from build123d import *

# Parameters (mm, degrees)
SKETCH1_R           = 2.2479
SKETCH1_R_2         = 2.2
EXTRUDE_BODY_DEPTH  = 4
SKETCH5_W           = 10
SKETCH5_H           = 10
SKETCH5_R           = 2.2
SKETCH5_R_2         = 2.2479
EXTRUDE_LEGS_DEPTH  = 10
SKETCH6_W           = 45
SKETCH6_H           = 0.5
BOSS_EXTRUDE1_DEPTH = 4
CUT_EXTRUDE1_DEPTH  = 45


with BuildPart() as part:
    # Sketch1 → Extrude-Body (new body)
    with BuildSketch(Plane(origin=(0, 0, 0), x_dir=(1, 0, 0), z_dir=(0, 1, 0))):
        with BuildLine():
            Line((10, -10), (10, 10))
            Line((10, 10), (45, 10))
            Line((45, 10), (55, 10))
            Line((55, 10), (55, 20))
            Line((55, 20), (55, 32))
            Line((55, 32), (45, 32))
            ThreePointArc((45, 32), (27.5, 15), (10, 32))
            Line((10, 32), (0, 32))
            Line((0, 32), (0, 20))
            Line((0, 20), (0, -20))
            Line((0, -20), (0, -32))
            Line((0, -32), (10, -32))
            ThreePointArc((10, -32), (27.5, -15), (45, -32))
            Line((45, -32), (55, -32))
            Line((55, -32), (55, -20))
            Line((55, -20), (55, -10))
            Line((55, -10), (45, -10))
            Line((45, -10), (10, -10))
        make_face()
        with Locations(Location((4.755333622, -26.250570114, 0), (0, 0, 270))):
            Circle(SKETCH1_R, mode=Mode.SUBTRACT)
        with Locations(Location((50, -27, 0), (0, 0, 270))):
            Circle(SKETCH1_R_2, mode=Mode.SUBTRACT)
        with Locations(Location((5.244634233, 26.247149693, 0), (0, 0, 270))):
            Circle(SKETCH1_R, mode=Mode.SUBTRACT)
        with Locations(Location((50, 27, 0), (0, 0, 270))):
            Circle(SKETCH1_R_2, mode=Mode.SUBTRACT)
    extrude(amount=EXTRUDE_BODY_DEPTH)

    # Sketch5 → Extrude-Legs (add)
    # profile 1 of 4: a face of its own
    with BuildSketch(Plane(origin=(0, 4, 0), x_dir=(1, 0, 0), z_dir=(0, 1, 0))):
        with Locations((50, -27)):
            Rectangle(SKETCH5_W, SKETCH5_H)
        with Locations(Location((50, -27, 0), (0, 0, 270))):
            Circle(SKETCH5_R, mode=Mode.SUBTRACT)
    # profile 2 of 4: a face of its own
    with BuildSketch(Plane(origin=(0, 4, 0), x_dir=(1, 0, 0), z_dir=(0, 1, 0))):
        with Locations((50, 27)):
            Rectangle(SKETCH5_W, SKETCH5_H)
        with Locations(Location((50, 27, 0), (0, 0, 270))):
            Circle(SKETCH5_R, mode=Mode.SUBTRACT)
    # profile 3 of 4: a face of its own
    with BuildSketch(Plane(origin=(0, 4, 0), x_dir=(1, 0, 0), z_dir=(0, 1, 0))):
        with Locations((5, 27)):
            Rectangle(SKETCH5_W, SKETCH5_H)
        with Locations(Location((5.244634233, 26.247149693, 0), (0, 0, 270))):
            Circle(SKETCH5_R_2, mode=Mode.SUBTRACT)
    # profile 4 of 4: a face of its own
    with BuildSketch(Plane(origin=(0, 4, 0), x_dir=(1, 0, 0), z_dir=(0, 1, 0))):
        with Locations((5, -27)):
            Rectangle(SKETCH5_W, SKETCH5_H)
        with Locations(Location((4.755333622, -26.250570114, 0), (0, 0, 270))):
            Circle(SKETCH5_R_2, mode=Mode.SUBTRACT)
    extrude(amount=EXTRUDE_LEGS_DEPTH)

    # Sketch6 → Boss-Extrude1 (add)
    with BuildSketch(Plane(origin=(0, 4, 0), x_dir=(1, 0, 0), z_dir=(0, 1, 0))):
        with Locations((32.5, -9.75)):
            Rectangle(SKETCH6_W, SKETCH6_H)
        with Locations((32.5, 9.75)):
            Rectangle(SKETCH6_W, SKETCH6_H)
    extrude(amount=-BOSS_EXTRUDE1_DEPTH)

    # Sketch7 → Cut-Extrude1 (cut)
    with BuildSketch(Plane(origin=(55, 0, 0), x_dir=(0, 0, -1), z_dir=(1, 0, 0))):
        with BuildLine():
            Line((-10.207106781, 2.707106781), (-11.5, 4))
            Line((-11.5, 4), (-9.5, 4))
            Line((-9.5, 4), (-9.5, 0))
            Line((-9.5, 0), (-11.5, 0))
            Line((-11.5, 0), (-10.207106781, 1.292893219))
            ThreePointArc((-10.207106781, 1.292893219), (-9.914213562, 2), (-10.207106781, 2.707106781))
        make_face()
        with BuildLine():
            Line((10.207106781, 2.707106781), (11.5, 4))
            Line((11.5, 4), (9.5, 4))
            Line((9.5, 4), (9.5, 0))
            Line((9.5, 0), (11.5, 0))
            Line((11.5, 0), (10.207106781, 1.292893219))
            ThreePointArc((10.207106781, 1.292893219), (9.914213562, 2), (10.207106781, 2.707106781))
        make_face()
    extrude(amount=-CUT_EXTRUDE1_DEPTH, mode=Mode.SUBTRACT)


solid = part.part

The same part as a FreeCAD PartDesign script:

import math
import FreeCAD as App
import Part
import Sketcher
from FreeCAD import Vector
Q = App.Units.Quantity

doc = App.newDocument("Part")
body = doc.addObject("PartDesign::Body", "Body")

# Sketch on XZ plane
sketch1 = body.newObject("Sketcher::SketchObject", "Sketch")
sketch1.AttachmentSupport = (doc.getObject("XZ_Plane"), [""])
sketch1.MapMode = "FlatFace"
sketch1.addGeometry(Part.LineSegment(Vector(10, 10, 0), Vector(10, -10, 0)), False)
sketch1.addGeometry(Part.LineSegment(Vector(10, -10, 0), Vector(55, -10, 0)), False)
sketch1.addGeometry(Part.LineSegment(Vector(55, -10, 0), Vector(55, -32, 0)), False)
sketch1.addGeometry(Part.LineSegment(Vector(55, -32, 0), Vector(45, -32, 0)), False)
sketch1.addGeometry(Part.ArcOfCircle(Part.Circle(Vector(27.5, -32.5, 0), Vector(0, 0, 1), 17.5), math.radians(2), math.radians(178)), False)
sketch1.addGeometry(Part.LineSegment(Vector(10, -32, 0), Vector(0, -32, 0)), False)
sketch1.addGeometry(Part.LineSegment(Vector(0, -32, 0), Vector(0, 32, 0)), False)
sketch1.addGeometry(Part.LineSegment(Vector(0, 32, 0), Vector(10, 32, 0)), False)
sketch1.addGeometry(Part.ArcOfCircle(Part.Circle(Vector(27.5, 32.5, 0), Vector(0, 0, 1), 17.5), math.radians(-178), math.radians(-2)), False)
sketch1.addGeometry(Part.LineSegment(Vector(45, 32, 0), Vector(55, 32, 0)), False)
sketch1.addGeometry(Part.LineSegment(Vector(55, 32, 0), Vector(55, 10, 0)), False)
sketch1.addGeometry(Part.LineSegment(Vector(55, 10, 0), Vector(10, 10, 0)), False)
sketch1.addGeometry(Part.Circle(Vector(4.8, 26.3, 0), Vector(0, 0, 1), 2.2), False)
sketch1.addGeometry(Part.Circle(Vector(50, 27, 0), Vector(0, 0, 1), 2.2), False)
sketch1.addGeometry(Part.Circle(Vector(5.2, -26.2, 0), Vector(0, 0, 1), 2.2), False)
sketch1.addGeometry(Part.Circle(Vector(50, -27, 0), Vector(0, 0, 1), 2.2), False)
sketch1.addConstraint(Sketcher.Constraint("Coincident", 0, 2, 1, 1))
sketch1.addConstraint(Sketcher.Constraint("Coincident", 1, 2, 2, 1))
sketch1.addConstraint(Sketcher.Constraint("Coincident", 2, 2, 3, 1))
sketch1.addConstraint(Sketcher.Constraint("Coincident", 3, 2, 4, 1))
sketch1.addConstraint(Sketcher.Constraint("Coincident", 4, 2, 5, 1))
sketch1.addConstraint(Sketcher.Constraint("Coincident", 5, 2, 6, 1))
sketch1.addConstraint(Sketcher.Constraint("Coincident", 6, 2, 7, 1))
sketch1.addConstraint(Sketcher.Constraint("Coincident", 7, 2, 8, 1))
sketch1.addConstraint(Sketcher.Constraint("Coincident", 8, 2, 9, 1))
sketch1.addConstraint(Sketcher.Constraint("Coincident", 9, 2, 10, 1))
sketch1.addConstraint(Sketcher.Constraint("Coincident", 10, 2, 11, 1))
sketch1.addConstraint(Sketcher.Constraint("Coincident", 11, 2, 0, 1))
sketch1.addConstraint(Sketcher.Constraint("Vertical", 0))
sketch1.addConstraint(Sketcher.Constraint("Horizontal", 1))
sketch1.addConstraint(Sketcher.Constraint("Vertical", 2))
sketch1.addConstraint(Sketcher.Constraint("Horizontal", 3))
sketch1.addConstraint(Sketcher.Constraint("Horizontal", 5))
sketch1.addConstraint(Sketcher.Constraint("Vertical", 6))
sketch1.addConstraint(Sketcher.Constraint("Horizontal", 7))
sketch1.addConstraint(Sketcher.Constraint("Horizontal", 9))
sketch1.addConstraint(Sketcher.Constraint("Vertical", 10))
sketch1.addConstraint(Sketcher.Constraint("Horizontal", 11))
sketch1.addConstraint(Sketcher.Constraint("Equal", 4, 8))
sketch1.addConstraint(Sketcher.Constraint("Equal", 12, 14))
sketch1.addConstraint(Sketcher.Constraint("Equal", 13, 15))
sketch1.addConstraint(Sketcher.Constraint("Symmetric", 5, 2, 6, 2, -1, 1))
sketch1.addConstraint(Sketcher.Constraint("Symmetric", 4, 3, 8, 3, -1))
sketch1.addConstraint(Sketcher.Constraint("Symmetric", 13, 3, 15, 3, -1))
sketch1.addConstraint(Sketcher.Constraint("Symmetric", 2, 2, 9, 2, -1))
sketch1.addConstraint(Sketcher.Constraint("Horizontal", 3, 2, 4, 2))
sketch1.addConstraint(Sketcher.Constraint("Vertical", 0, 2, 4, 2))
sketch1.addConstraint(Sketcher.Constraint("Equal", 3, 5))
sketch1.addConstraint(Sketcher.Constraint("Equal", 2, 10))
sketch1.addConstraint(Sketcher.Constraint("Diameter", 13, Q("4.4 mm")))
sketch1.addConstraint(Sketcher.Constraint("DistanceX", 1, 1, 1, 2, Q("45 mm")))
sketch1.addConstraint(Sketcher.Constraint("DistanceX", 3, 2, 3, 1, Q("10 mm")))
sketch1.addConstraint(Sketcher.Constraint("DistanceY", 0, 2, 0, 1, Q("20 mm")))
sketch1.addConstraint(Sketcher.Constraint("DistanceY", 2, 2, 2, 1, Q("22 mm")))
sketch1.addConstraint(Sketcher.Constraint("DistanceX", -1, 1, 13, 3, Q("50 mm")))
sketch1.addConstraint(Sketcher.Constraint("DistanceY", -1, 1, 13, 3, Q("27 mm")))
sketch1.addConstraint(Sketcher.Constraint("Diameter", 12, Q("4.4958 mm")))
sketch1.addConstraint(Sketcher.Constraint("Radius", 4, Q("17.507353 mm")))
sketch1.addConstraint(Sketcher.Constraint("DistanceX", 12, 3, 14, 3, Q("0.489301 mm")))
sketch1.addConstraint(Sketcher.Constraint("DistanceY", -1, 1, 12, 3, Q("26.25057 mm")))
sketch1.addConstraint(Sketcher.Constraint("DistanceY", 14, 3, -1, 1, Q("26.24715 mm")))
sketch1.addConstraint(Sketcher.Constraint("DistanceX", -1, 1, 12, 3, Q("4.755334 mm")))
pad1 = body.newObject("PartDesign::Pad", "Pad")
pad1.Profile = sketch1
pad1.Length = 4
pad1.Reversed = True

# Sketch on XZ plane
sketch2 = body.newObject("Sketcher::SketchObject", "Sketch001")
sketch2.AttachmentSupport = (doc.getObject("XZ_Plane"), [""])
sketch2.MapMode = "FlatFace"
sketch2.AttachmentOffset = App.Placement(Vector(0, 0, -4), App.Rotation())
sketch2.addGeometry(Part.LineSegment(Vector(45, 22, 0), Vector(45, 32, 0)), False)
sketch2.addGeometry(Part.LineSegment(Vector(45, 32, 0), Vector(55, 32, 0)), False)
sketch2.addGeometry(Part.LineSegment(Vector(55, 32, 0), Vector(55, 22, 0)), False)
sketch2.addGeometry(Part.LineSegment(Vector(55, 22, 0), Vector(45, 22, 0)), False)
sketch2.addGeometry(Part.Circle(Vector(50, 27, 0), Vector(0, 0, 1), 2.2), False)
sketch2.addGeometry(Part.LineSegment(Vector(45, -32, 0), Vector(45, -22, 0)), False)
sketch2.addGeometry(Part.LineSegment(Vector(45, -22, 0), Vector(55, -22, 0)), False)
sketch2.addGeometry(Part.LineSegment(Vector(55, -22, 0), Vector(55, -32, 0)), False)
sketch2.addGeometry(Part.LineSegment(Vector(55, -32, 0), Vector(45, -32, 0)), False)
sketch2.addGeometry(Part.Circle(Vector(50, -27, 0), Vector(0, 0, 1), 2.2), False)
sketch2.addGeometry(Part.LineSegment(Vector(0, -32, 0), Vector(0, -22, 0)), False)
sketch2.addGeometry(Part.LineSegment(Vector(0, -22, 0), Vector(10, -22, 0)), False)
sketch2.addGeometry(Part.LineSegment(Vector(10, -22, 0), Vector(10, -32, 0)), False)
sketch2.addGeometry(Part.LineSegment(Vector(10, -32, 0), Vector(0, -32, 0)), False)
sketch2.addGeometry(Part.Circle(Vector(5.2, -26.2, 0), Vector(0, 0, 1), 2.2), False)
sketch2.addGeometry(Part.LineSegment(Vector(0, 22, 0), Vector(0, 32, 0)), False)
sketch2.addGeometry(Part.LineSegment(Vector(0, 32, 0), Vector(10, 32, 0)), False)
sketch2.addGeometry(Part.LineSegment(Vector(10, 32, 0), Vector(10, 22, 0)), False)
sketch2.addGeometry(Part.LineSegment(Vector(10, 22, 0), Vector(0, 22, 0)), False)
sketch2.addGeometry(Part.Circle(Vector(4.8, 26.3, 0), Vector(0, 0, 1), 2.2), False)
sketch2.addConstraint(Sketcher.Constraint("Coincident", 0, 2, 1, 1))
sketch2.addConstraint(Sketcher.Constraint("Coincident", 1, 2, 2, 1))
sketch2.addConstraint(Sketcher.Constraint("Coincident", 2, 2, 3, 1))
sketch2.addConstraint(Sketcher.Constraint("Coincident", 3, 2, 0, 1))
sketch2.addConstraint(Sketcher.Constraint("Coincident", 5, 2, 6, 1))
sketch2.addConstraint(Sketcher.Constraint("Coincident", 6, 2, 7, 1))
sketch2.addConstraint(Sketcher.Constraint("Coincident", 7, 2, 8, 1))
sketch2.addConstraint(Sketcher.Constraint("Coincident", 8, 2, 5, 1))
sketch2.addConstraint(Sketcher.Constraint("Coincident", 10, 2, 11, 1))
sketch2.addConstraint(Sketcher.Constraint("Coincident", 11, 2, 12, 1))
sketch2.addConstraint(Sketcher.Constraint("Coincident", 12, 2, 13, 1))
sketch2.addConstraint(Sketcher.Constraint("Coincident", 13, 2, 10, 1))
sketch2.addConstraint(Sketcher.Constraint("Coincident", 15, 2, 16, 1))
sketch2.addConstraint(Sketcher.Constraint("Coincident", 16, 2, 17, 1))
sketch2.addConstraint(Sketcher.Constraint("Coincident", 17, 2, 18, 1))
sketch2.addConstraint(Sketcher.Constraint("Coincident", 18, 2, 15, 1))
sketch2.addConstraint(Sketcher.Constraint("Vertical", 0))
sketch2.addConstraint(Sketcher.Constraint("Horizontal", 1))
sketch2.addConstraint(Sketcher.Constraint("Vertical", 2))
sketch2.addConstraint(Sketcher.Constraint("Horizontal", 3))
sketch2.addConstraint(Sketcher.Constraint("Vertical", 5))
sketch2.addConstraint(Sketcher.Constraint("Horizontal", 6))
sketch2.addConstraint(Sketcher.Constraint("Vertical", 7))
sketch2.addConstraint(Sketcher.Constraint("Horizontal", 8))
sketch2.addConstraint(Sketcher.Constraint("Vertical", 10))
sketch2.addConstraint(Sketcher.Constraint("Horizontal", 11))
sketch2.addConstraint(Sketcher.Constraint("Vertical", 12))
sketch2.addConstraint(Sketcher.Constraint("Horizontal", 13))
sketch2.addConstraint(Sketcher.Constraint("Vertical", 15))
sketch2.addConstraint(Sketcher.Constraint("Horizontal", 16))
sketch2.addConstraint(Sketcher.Constraint("Vertical", 17))
sketch2.addConstraint(Sketcher.Constraint("Horizontal", 18))
sketch2.addConstraint(Sketcher.Constraint("Equal", 4, 9))
sketch2.addConstraint(Sketcher.Constraint("Equal", 14, 19))
sketch2.addConstraint(Sketcher.Constraint("Symmetric", 13, 2, 15, 2, -1, 1))
sketch2.addConstraint(Sketcher.Constraint("Symmetric", 4, 3, 9, 3, -1))
sketch2.addConstraint(Sketcher.Constraint("Symmetric", 3, 2, 5, 2, -1))
sketch2.addConstraint(Sketcher.Constraint("Symmetric", 1, 2, 7, 2, -1))
sketch2.addConstraint(Sketcher.Constraint("Symmetric", 11, 2, 17, 2, -1))
sketch2.addConstraint(Sketcher.Constraint("PointOnObject", 10, 2, -2))
sketch2.addConstraint(Sketcher.Constraint("Horizontal", 6, 2, 10, 2))
sketch2.addConstraint(Sketcher.Constraint("Horizontal", 8, 2, 12, 2))
sketch2.addConstraint(Sketcher.Constraint("Equal", 8, 11))
sketch2.addConstraint(Sketcher.Constraint("Equal", 18, 0))
sketch2.addConstraint(Sketcher.Constraint("Diameter", 4, Q("4.4 mm")))
sketch2.addConstraint(Sketcher.Constraint("DistanceX", 1, 1, 1, 2, Q("10 mm")))
sketch2.addConstraint(Sketcher.Constraint("DistanceX", -1, 1, 4, 3, Q("50 mm")))
sketch2.addConstraint(Sketcher.Constraint("DistanceY", -1, 1, 4, 3, Q("27 mm")))
sketch2.addConstraint(Sketcher.Constraint("DistanceX", -1, 1, 0, 2, Q("45 mm")))
sketch2.addConstraint(Sketcher.Constraint("DistanceY", -1, 1, 0, 2, Q("32 mm")))
sketch2.addConstraint(Sketcher.Constraint("Diameter", 14, Q("4.4958 mm")))
sketch2.addConstraint(Sketcher.Constraint("DistanceX", 19, 3, 14, 3, Q("0.489301 mm")))
sketch2.addConstraint(Sketcher.Constraint("DistanceY", 14, 3, -1, 1, Q("26.24715 mm")))
sketch2.addConstraint(Sketcher.Constraint("DistanceY", -1, 1, 19, 3, Q("26.25057 mm")))
sketch2.addConstraint(Sketcher.Constraint("DistanceX", -1, 1, 14, 3, Q("5.244634 mm")))
pad2 = body.newObject("PartDesign::Pad", "Pad001")
pad2.Profile = sketch2
pad2.Length = 10
pad2.Reversed = True

# Sketch on XZ plane
sketch3 = body.newObject("Sketcher::SketchObject", "Sketch002")
sketch3.AttachmentSupport = (doc.getObject("XZ_Plane"), [""])
sketch3.MapMode = "FlatFace"
sketch3.AttachmentOffset = App.Placement(Vector(0, 0, -4), App.Rotation())
sketch3.addGeometry(Part.LineSegment(Vector(10, 9.5, 0), Vector(10, 10, 0)), False)
sketch3.addGeometry(Part.LineSegment(Vector(10, 10, 0), Vector(55, 10, 0)), False)
sketch3.addGeometry(Part.LineSegment(Vector(55, 10, 0), Vector(55, 9.5, 0)), False)
sketch3.addGeometry(Part.LineSegment(Vector(55, 9.5, 0), Vector(10, 9.5, 0)), False)
sketch3.addGeometry(Part.LineSegment(Vector(10, -10, 0), Vector(10, -9.5, 0)), False)
sketch3.addGeometry(Part.LineSegment(Vector(10, -9.5, 0), Vector(55, -9.5, 0)), False)
sketch3.addGeometry(Part.LineSegment(Vector(55, -9.5, 0), Vector(55, -10, 0)), False)
sketch3.addGeometry(Part.LineSegment(Vector(55, -10, 0), Vector(10, -10, 0)), False)
sketch3.addConstraint(Sketcher.Constraint("Coincident", 0, 2, 1, 1))
sketch3.addConstraint(Sketcher.Constraint("Coincident", 1, 2, 2, 1))
sketch3.addConstraint(Sketcher.Constraint("Coincident", 2, 2, 3, 1))
sketch3.addConstraint(Sketcher.Constraint("Coincident", 3, 2, 0, 1))
sketch3.addConstraint(Sketcher.Constraint("Coincident", 4, 2, 5, 1))
sketch3.addConstraint(Sketcher.Constraint("Coincident", 5, 2, 6, 1))
sketch3.addConstraint(Sketcher.Constraint("Coincident", 6, 2, 7, 1))
sketch3.addConstraint(Sketcher.Constraint("Coincident", 7, 2, 4, 1))
sketch3.addConstraint(Sketcher.Constraint("Vertical", 0))
sketch3.addConstraint(Sketcher.Constraint("Horizontal", 1))
sketch3.addConstraint(Sketcher.Constraint("Vertical", 2))
sketch3.addConstraint(Sketcher.Constraint("Horizontal", 3))
sketch3.addConstraint(Sketcher.Constraint("Vertical", 4))
sketch3.addConstraint(Sketcher.Constraint("Horizontal", 5))
sketch3.addConstraint(Sketcher.Constraint("Vertical", 6))
sketch3.addConstraint(Sketcher.Constraint("Horizontal", 7))
sketch3.addConstraint(Sketcher.Constraint("Symmetric", 3, 2, 4, 2, -1))
sketch3.addConstraint(Sketcher.Constraint("Symmetric", 1, 2, 6, 2, -1))
sketch3.addConstraint(Sketcher.Constraint("DistanceX", 1, 1, 1, 2, Q("45 mm")))
sketch3.addConstraint(Sketcher.Constraint("DistanceY", 0, 1, 0, 2, Q("0.5 mm")))
sketch3.addConstraint(Sketcher.Constraint("DistanceX", -1, 1, 0, 2, Q("10 mm")))
sketch3.addConstraint(Sketcher.Constraint("DistanceY", -1, 1, 0, 2, Q("10 mm")))
pad3 = body.newObject("PartDesign::Pad", "Pad002")
pad3.Profile = sketch3
pad3.Length = 4

# Sketch on YZ plane
sketch4 = body.newObject("Sketcher::SketchObject", "Sketch003")
sketch4.AttachmentSupport = (doc.getObject("YZ_Plane"), [""])
sketch4.MapMode = "FlatFace"
sketch4.AttachmentOffset = App.Placement(Vector(0, 0, 55), App.Rotation())
sketch4.addGeometry(Part.LineSegment(Vector(4, 11.5, 0), Vector(2.7, 10.2, 0)), False)
sketch4.addGeometry(Part.ArcOfCircle(Part.Circle(Vector(2, 10.9, 0), Vector(0, 0, 1), 1), math.radians(-135), math.radians(-45)), False)
sketch4.addGeometry(Part.LineSegment(Vector(1.3, 10.2, 0), Vector(0, 11.5, 0)), False)
sketch4.addGeometry(Part.LineSegment(Vector(0, 11.5, 0), Vector(0, 9.5, 0)), False)
sketch4.addGeometry(Part.LineSegment(Vector(0, 9.5, 0), Vector(4, 9.5, 0)), False)
sketch4.addGeometry(Part.LineSegment(Vector(4, 9.5, 0), Vector(4, 11.5, 0)), False)
sketch4.addGeometry(Part.LineSegment(Vector(2.7, -10.2, 0), Vector(4, -11.5, 0)), False)
sketch4.addGeometry(Part.LineSegment(Vector(4, -11.5, 0), Vector(4, -9.5, 0)), False)
sketch4.addGeometry(Part.LineSegment(Vector(4, -9.5, 0), Vector(0, -9.5, 0)), False)
sketch4.addGeometry(Part.LineSegment(Vector(0, -9.5, 0), Vector(0, -11.5, 0)), False)
sketch4.addGeometry(Part.LineSegment(Vector(0, -11.5, 0), Vector(1.3, -10.2, 0)), False)
sketch4.addGeometry(Part.ArcOfCircle(Part.Circle(Vector(2, -10.9, 0), Vector(0, 0, 1), 1), math.radians(45), math.radians(135)), False)
sketch4.addConstraint(Sketcher.Constraint("Tangent", 0, 2, 1, 2))
sketch4.addConstraint(Sketcher.Constraint("Tangent", 1, 1, 2, 1))
sketch4.addConstraint(Sketcher.Constraint("Coincident", 2, 2, 3, 1))
sketch4.addConstraint(Sketcher.Constraint("Coincident", 3, 2, 4, 1))
sketch4.addConstraint(Sketcher.Constraint("Coincident", 4, 2, 5, 1))
sketch4.addConstraint(Sketcher.Constraint("Coincident", 5, 2, 0, 1))
sketch4.addConstraint(Sketcher.Constraint("Coincident", 6, 2, 7, 1))
sketch4.addConstraint(Sketcher.Constraint("Coincident", 7, 2, 8, 1))
sketch4.addConstraint(Sketcher.Constraint("Coincident", 8, 2, 9, 1))
sketch4.addConstraint(Sketcher.Constraint("Coincident", 9, 2, 10, 1))
sketch4.addConstraint(Sketcher.Constraint("Tangent", 10, 2, 11, 2))
sketch4.addConstraint(Sketcher.Constraint("Tangent", 11, 1, 6, 1))
sketch4.addConstraint(Sketcher.Constraint("Vertical", 3))
sketch4.addConstraint(Sketcher.Constraint("Horizontal", 4))
sketch4.addConstraint(Sketcher.Constraint("Vertical", 5))
sketch4.addConstraint(Sketcher.Constraint("Vertical", 7))
sketch4.addConstraint(Sketcher.Constraint("Horizontal", 8))
sketch4.addConstraint(Sketcher.Constraint("Vertical", 9))
sketch4.addConstraint(Sketcher.Constraint("Equal", 1, 11))
sketch4.addConstraint(Sketcher.Constraint("Symmetric", 3, 2, 8, 2, -1, 1))
sketch4.addConstraint(Sketcher.Constraint("Symmetric", 1, 3, 11, 3, -1))
sketch4.addConstraint(Sketcher.Constraint("Symmetric", 5, 2, 6, 2, -1))
sketch4.addConstraint(Sketcher.Constraint("Symmetric", 2, 2, 9, 2, -1))
sketch4.addConstraint(Sketcher.Constraint("Perpendicular", 0, 2))
sketch4.addConstraint(Sketcher.Constraint("Parallel", 2, 6))
sketch4.addConstraint(Sketcher.Constraint("Horizontal", 2, 2, 5, 2))
sketch4.addConstraint(Sketcher.Constraint("Radius", 1, Q("1 mm")))
sketch4.addConstraint(Sketcher.Constraint("DistanceX", 4, 1, 4, 2, Q("4 mm")))
sketch4.addConstraint(Sketcher.Constraint("DistanceY", 3, 2, 3, 1, Q("2 mm")))
sketch4.addConstraint(Sketcher.Constraint("DistanceY", 6, 2, 4, 2, Q("21 mm")))
pocket1 = body.newObject("PartDesign::Pocket", "Pocket")
pocket1.Profile = sketch4
pocket1.Length = 45

doc.recompute()
